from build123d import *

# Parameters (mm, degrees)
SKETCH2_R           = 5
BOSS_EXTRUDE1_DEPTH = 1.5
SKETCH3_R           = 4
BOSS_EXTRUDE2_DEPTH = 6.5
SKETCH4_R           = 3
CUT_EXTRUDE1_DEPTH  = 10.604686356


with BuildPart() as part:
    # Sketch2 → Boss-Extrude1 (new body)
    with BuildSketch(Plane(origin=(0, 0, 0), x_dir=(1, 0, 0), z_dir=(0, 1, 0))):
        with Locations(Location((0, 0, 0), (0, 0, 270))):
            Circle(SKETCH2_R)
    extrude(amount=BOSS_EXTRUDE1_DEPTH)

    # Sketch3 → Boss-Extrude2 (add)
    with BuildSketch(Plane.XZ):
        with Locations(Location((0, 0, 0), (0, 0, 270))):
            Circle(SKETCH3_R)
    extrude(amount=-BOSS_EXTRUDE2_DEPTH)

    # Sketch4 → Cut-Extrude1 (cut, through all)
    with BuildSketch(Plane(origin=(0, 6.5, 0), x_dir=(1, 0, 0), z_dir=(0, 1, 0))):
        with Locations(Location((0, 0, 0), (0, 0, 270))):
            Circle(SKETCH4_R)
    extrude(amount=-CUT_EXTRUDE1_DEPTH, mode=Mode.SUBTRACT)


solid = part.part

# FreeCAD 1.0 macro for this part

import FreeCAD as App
import Part
import Sketcher
from FreeCAD import Vector
Q = App.Units.Quantity

doc = App.newDocument("Part")
params = doc.addObject("Spreadsheet::Sheet", "Params")
for row, (alias, value) in enumerate([
    ("sketch1_diameter", "10 mm"),
    ("pad1_length", "1.5 mm"),
    ("sketch2_diameter", "8 mm"),
    ("pad2_length", "6.5 mm"),
    ("sketch3_diameter", "6 mm"),
], start=1):
    params.set(f"A{row}", alias)
    params.set(f"B{row}", "=" + value)
    params.setAlias(f"B{row}", alias)

body = doc.addObject("PartDesign::Body", "Body")

# Sketch on XZ plane
sketch1 = doc.addObject("Sketcher::SketchObject", "Sketch")
body.addObject(sketch1)
sketch1.AttachmentSupport = (doc.XZ_Plane, [""])
sketch1.MapMode = "FlatFace"
sketch1.addGeometry(Part.Circle(Vector(0, 0, 0), Vector(0, 0, 1), 5), False)
sketch1.addConstraint([
    Sketcher.Constraint("Coincident", 0, 3, -1, 1),
    Sketcher.Constraint("Diameter", 0, Q("10 mm")),
])
sketch1.setExpression("Constraints[1]", "Params.sketch1_diameter")
pad1 = doc.addObject("PartDesign::Pad", "Pad")
body.addObject(pad1)
pad1.Profile = sketch1
pad1.setExpression("Length", "Params.pad1_length")
pad1.Reversed = True

# Sketch on XZ plane
sketch2 = doc.addObject("Sketcher::SketchObject", "Sketch001")
body.addObject(sketch2)
sketch2.AttachmentSupport = (doc.XZ_Plane, [""])
sketch2.MapMode = "FlatFace"
sketch2.addGeometry(Part.Circle(Vector(0, 0, 0), Vector(0, 0, 1), 4), False)
sketch2.addConstraint([
    Sketcher.Constraint("Coincident", 0, 3, -1, 1),
    Sketcher.Constraint("Diameter", 0, Q("8 mm")),
])
sketch2.setExpression("Constraints[1]", "Params.sketch2_diameter")
pad2 = doc.addObject("PartDesign::Pad", "Pad001")
body.addObject(pad2)
pad2.Profile = sketch2
pad2.setExpression("Length", "Params.pad2_length")
pad2.Reversed = True

# Sketch on XZ plane
sketch3 = doc.addObject("Sketcher::SketchObject", "Sketch002")
body.addObject(sketch3)
sketch3.AttachmentSupport = (doc.XZ_Plane, [""])
sketch3.MapMode = "FlatFace"
sketch3.AttachmentOffset = App.Placement(Vector(0, 0, -6.5), App.Rotation())
sketch3.addGeometry(Part.Circle(Vector(0, 0, 0), Vector(0, 0, 1), 3), False)
sketch3.addConstraint([
    Sketcher.Constraint("Coincident", 0, 3, -1, 1),
    Sketcher.Constraint("Diameter", 0, Q("6 mm")),
])
sketch3.setExpression("Constraints[1]", "Params.sketch3_diameter")
pocket1 = doc.addObject("PartDesign::Pocket", "Pocket")
body.addObject(pocket1)
pocket1.Profile = sketch3
pocket1.Type = "ThroughAll"
pocket1.Reversed = True

doc.recompute()
